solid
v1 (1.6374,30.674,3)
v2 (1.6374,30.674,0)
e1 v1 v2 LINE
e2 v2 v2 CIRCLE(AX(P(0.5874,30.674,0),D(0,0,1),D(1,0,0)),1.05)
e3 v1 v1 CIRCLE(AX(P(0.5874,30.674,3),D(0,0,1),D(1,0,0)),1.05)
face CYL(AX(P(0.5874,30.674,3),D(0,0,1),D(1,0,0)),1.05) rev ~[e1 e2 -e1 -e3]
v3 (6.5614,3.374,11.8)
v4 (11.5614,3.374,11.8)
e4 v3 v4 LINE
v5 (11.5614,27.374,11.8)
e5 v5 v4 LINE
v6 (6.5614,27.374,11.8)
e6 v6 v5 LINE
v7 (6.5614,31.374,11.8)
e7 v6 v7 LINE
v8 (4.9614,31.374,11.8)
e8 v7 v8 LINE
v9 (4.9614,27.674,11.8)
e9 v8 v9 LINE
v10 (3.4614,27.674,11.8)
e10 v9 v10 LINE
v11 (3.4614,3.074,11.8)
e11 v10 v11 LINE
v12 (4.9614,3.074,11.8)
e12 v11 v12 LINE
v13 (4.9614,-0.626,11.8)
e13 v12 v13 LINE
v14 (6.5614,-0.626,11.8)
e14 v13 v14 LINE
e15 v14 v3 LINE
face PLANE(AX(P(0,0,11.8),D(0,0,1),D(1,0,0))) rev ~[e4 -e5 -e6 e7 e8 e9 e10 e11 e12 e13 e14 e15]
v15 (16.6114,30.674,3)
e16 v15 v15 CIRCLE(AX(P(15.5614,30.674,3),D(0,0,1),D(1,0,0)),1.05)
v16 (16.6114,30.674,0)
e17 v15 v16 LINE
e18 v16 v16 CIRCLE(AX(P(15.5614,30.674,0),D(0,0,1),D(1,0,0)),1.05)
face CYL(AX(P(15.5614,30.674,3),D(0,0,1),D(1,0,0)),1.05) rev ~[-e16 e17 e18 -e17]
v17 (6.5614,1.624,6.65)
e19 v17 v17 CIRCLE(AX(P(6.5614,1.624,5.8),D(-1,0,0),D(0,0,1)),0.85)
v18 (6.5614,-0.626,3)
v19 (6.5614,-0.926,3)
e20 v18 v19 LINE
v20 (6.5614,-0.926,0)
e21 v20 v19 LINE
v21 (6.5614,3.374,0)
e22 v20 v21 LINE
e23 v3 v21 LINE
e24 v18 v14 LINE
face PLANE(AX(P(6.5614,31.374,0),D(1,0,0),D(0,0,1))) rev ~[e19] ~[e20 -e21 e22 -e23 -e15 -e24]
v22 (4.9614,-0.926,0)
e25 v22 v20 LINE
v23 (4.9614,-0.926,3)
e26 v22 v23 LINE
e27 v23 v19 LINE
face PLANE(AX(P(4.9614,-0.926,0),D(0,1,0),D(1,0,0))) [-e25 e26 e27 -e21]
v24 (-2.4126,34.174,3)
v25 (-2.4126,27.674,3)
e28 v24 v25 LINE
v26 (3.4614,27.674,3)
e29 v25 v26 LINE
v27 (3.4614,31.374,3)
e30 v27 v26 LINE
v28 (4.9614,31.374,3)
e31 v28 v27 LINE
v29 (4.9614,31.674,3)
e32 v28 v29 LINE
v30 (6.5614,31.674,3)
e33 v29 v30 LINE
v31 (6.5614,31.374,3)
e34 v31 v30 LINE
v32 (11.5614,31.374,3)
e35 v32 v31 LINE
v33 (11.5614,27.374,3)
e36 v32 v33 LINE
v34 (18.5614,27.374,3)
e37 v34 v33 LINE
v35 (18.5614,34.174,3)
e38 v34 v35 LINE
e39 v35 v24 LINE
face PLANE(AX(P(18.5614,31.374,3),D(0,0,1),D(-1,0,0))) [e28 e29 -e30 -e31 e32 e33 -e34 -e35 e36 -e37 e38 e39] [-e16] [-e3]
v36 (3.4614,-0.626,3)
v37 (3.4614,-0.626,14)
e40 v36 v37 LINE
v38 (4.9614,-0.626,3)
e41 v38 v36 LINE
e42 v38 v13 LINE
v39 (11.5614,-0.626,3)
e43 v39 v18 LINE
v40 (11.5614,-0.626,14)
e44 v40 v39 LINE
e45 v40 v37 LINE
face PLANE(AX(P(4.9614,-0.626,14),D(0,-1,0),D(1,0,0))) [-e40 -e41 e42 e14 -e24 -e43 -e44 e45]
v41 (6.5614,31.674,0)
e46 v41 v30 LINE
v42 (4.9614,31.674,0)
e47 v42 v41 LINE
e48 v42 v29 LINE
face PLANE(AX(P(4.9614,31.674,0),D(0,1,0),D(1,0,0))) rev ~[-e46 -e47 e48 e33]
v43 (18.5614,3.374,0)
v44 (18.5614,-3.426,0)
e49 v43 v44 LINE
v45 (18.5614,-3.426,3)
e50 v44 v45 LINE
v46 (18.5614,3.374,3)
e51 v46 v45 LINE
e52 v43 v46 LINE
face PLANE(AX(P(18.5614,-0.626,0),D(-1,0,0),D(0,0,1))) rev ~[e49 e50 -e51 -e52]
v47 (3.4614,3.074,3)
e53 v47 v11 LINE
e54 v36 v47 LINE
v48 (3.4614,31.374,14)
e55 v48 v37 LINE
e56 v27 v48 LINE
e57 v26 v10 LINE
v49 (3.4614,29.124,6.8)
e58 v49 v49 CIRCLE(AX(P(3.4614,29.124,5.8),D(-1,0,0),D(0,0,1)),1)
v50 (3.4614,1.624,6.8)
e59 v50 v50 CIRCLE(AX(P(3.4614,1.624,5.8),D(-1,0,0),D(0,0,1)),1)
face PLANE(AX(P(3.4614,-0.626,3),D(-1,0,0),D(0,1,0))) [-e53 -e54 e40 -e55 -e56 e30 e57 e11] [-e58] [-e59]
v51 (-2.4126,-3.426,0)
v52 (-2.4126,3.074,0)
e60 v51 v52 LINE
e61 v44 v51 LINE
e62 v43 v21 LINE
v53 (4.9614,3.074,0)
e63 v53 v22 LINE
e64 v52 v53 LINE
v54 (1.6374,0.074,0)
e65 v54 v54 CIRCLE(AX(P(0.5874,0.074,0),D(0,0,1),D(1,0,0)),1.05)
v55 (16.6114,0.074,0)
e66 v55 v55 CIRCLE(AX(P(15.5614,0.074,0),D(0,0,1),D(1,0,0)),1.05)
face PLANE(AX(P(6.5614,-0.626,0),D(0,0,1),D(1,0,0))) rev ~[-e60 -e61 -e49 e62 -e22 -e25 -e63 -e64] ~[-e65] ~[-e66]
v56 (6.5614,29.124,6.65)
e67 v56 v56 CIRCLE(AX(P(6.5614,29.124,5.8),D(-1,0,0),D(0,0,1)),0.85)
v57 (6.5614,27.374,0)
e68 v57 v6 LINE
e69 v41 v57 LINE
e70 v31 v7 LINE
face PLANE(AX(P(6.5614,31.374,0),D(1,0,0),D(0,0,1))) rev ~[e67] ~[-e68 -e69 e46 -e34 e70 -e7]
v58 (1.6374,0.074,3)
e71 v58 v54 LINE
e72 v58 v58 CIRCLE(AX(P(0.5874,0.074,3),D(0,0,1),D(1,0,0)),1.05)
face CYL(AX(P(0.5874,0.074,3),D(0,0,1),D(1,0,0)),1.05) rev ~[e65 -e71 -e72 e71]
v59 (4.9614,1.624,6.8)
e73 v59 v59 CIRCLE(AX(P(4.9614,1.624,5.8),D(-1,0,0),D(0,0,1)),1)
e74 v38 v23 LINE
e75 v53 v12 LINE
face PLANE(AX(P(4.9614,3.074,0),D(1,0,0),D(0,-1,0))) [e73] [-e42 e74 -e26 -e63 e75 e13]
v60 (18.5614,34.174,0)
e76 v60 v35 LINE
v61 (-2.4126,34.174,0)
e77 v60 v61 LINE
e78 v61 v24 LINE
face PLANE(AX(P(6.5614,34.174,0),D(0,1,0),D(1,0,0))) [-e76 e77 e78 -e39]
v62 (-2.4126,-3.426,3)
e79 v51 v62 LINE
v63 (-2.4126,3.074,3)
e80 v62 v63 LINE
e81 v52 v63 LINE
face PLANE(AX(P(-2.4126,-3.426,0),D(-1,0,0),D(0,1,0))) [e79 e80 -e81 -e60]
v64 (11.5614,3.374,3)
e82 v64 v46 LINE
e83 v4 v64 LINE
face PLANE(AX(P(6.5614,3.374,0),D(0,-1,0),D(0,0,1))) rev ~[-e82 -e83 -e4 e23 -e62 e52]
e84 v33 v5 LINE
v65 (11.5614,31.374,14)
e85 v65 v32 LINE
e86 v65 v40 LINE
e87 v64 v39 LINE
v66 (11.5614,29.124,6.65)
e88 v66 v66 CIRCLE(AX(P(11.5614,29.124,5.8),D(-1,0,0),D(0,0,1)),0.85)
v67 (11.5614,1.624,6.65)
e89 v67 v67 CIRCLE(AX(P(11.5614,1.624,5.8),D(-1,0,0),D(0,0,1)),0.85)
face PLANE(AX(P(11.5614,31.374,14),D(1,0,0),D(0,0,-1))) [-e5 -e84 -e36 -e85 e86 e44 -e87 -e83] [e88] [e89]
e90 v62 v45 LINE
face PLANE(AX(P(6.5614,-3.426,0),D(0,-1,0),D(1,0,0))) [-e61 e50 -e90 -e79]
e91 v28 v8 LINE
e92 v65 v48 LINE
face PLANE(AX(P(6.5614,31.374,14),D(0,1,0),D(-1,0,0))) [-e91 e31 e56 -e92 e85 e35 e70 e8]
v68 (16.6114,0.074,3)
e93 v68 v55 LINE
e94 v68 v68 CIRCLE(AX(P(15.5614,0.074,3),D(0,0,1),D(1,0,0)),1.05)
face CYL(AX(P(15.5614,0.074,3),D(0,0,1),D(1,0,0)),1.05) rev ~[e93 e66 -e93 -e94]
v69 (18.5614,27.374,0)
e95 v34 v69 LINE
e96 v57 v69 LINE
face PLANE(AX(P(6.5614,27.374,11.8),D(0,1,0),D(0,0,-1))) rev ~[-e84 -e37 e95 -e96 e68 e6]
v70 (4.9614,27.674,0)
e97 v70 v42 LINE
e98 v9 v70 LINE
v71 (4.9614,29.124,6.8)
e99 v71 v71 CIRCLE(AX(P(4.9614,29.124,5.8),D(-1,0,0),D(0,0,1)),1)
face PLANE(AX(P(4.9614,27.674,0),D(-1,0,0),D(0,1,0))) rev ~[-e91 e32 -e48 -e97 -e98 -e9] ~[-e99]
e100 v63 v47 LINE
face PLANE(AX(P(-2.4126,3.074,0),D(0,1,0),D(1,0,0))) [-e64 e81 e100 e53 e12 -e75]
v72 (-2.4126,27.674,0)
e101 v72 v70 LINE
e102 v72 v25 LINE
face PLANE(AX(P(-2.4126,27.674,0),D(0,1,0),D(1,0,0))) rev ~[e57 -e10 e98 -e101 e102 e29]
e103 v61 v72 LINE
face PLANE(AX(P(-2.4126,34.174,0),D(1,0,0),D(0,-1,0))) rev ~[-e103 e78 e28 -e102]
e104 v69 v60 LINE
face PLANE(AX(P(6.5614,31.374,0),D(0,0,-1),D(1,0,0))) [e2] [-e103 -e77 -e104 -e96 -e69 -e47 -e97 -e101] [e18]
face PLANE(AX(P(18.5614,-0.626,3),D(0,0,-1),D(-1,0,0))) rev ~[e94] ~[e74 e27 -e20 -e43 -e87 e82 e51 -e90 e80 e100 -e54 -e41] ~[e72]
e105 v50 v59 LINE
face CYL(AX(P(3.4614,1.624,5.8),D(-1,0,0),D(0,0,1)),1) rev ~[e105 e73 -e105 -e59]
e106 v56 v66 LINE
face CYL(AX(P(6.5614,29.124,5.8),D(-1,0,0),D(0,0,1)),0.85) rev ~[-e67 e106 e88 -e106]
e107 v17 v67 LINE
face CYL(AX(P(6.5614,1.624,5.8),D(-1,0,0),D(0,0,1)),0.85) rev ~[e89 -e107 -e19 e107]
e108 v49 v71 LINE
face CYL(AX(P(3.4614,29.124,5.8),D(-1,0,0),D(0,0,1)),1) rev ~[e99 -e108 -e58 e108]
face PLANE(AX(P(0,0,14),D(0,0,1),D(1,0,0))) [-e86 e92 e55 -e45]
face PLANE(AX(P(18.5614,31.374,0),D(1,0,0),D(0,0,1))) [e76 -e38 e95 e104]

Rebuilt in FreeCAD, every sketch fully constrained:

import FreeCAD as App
import Part
import Sketcher
from FreeCAD import Vector
Q = App.Units.Quantity


def add_polygon(sketch, points):
    """Adds a closed chain of lines whose ends are joined by coincident constraints."""
    first, n = sketch.GeometryCount, len(points)
    for a, b in zip(points, points[1:] + points[:1]):
        sketch.addGeometry(Part.LineSegment(App.Vector(*a, 0), App.Vector(*b, 0)), False)
    for i in range(n):
        sketch.addConstraint(Sketcher.Constraint("Coincident", first + i, 2, first + (i + 1) % n, 1))

doc = App.newDocument("Part")
params = doc.addObject("Spreadsheet::Sheet", "Params")
for row, (alias, value) in enumerate([
    ("sketch1_width", "12 mm"),
    ("sketch1_height", "32 mm"),
    ("pad1_length", "14 mm"),
    ("sketch2_diameter", "1.7 mm"),
    ("sketch3_width", "24 mm"),
    ("sketch3_height", "12 mm"),
    ("sketch4_width", "7 mm"),
    ("sketch4_height", "11 mm"),
    ("pocket3_length", "32 mm"),
    ("sketch5_width", "12 mm"),
    ("sketch5_height", "3 mm"),
    ("pad2_length", "2.8 mm"),
    ("sketch6_width", "12 mm"),
    ("sketch6_height", "3 mm"),
    ("pad3_length", "2.8 mm"),
    ("sketch7_height", "4 mm"),
    ("sketch7_width", "1.6 mm"),
    ("sketch7_height2", "2.5 mm"),
    ("pad4_length", "3 mm"),
    ("sketch8_width", "1.5 mm"),
    ("sketch8_height", "3.7 mm"),
    ("pad5_length", "11 mm"),
    ("sketch9_height", "32 mm"),
    ("sketch9_width", "1.6 mm"),
    ("sketch9_width2", "1.5 mm"),
    ("sketch9_height2", "3.7 mm"),
    ("pad6_length", "2.2 mm"),
    ("sketch10_diameter", "2 mm"),
    ("pocket4_length", "1.5 mm"),
    ("sketch11_diameter", "2.1 mm"),
    ("pocket5_length", "3 mm"),
], start=1):
    params.set(f"A{row}", alias)
    params.set(f"B{row}", "=" + value)
    params.setAlias(f"B{row}", alias)

body = doc.addObject("PartDesign::Body", "Body")

# Sketch on XY plane
sketch1 = body.newObject("Sketcher::SketchObject", "Sketch")
sketch1.AttachmentSupport = (doc.getObject("XY_Plane"), [""])
sketch1.MapMode = "FlatFace"
add_polygon(sketch1, [(7, 31), (7, -1), (19, -1), (19, 31)])  # lines 0-3
sketch1.addConstraint([
    Sketcher.Constraint("Vertical", 0),
    Sketcher.Constraint("Horizontal", 1),
    Sketcher.Constraint("Vertical", 2),
    Sketcher.Constraint("Horizontal", 3),
    Sketcher.Constraint("DistanceX", 1, 1, 1, 2, Q("12 mm")),
    Sketcher.Constraint("DistanceY", 0, 2, 0, 1, Q("32 mm")),
    Sketcher.Constraint("DistanceY", 0, 2, -1, 1, Q("0.626 mm")),
    Sketcher.Constraint("DistanceX", -1, 1, 0, 2, Q("6.5614 mm")),
])
sketch1.setExpression("Constraints[8]", "Params.sketch1_width")
sketch1.setExpression("Constraints[9]", "Params.sketch1_height")
pad1 = body.newObject("PartDesign::Pad", "Pad")
pad1.Profile = sketch1
pad1.setExpression("Length", "Params.pad1_length")

# Sketch on YZ plane
sketch2 = body.newObject("Sketcher::SketchObject", "Sketch001")
sketch2.AttachmentSupport = (doc.getObject("YZ_Plane"), [""])
sketch2.MapMode = "FlatFace"
sketch2.AttachmentOffset = App.Placement(Vector(0, 0, 6.5614), App.Rotation())
sketch2.addGeometry([
    Part.Circle(Vector(29.1, 5.8, 0), Vector(0, 0, 1), 0.8),
    Part.Circle(Vector(1.6, 5.8, 0), Vector(0, 0, 1), 0.8),
], False)
sketch2.addConstraint([
    Sketcher.Constraint("Equal", 0, 1),
    Sketcher.Constraint("Horizontal", 0, 3, 1, 3),
    Sketcher.Constraint("Diameter", 0, Q("1.7 mm")),
    Sketcher.Constraint("DistanceY", -1, 1, 0, 3, Q("5.8 mm")),
    Sketcher.Constraint("DistanceX", 1, 3, 0, 3, Q("27.5 mm")),
    Sketcher.Constraint("DistanceX", -1, 1, 0, 3, Q("29.124 mm")),
])
sketch2.setExpression("Constraints[2]", "Params.sketch2_diameter")
pocket1 = body.newObject("PartDesign::Pocket", "Pocket")
pocket1.Profile = sketch2
pocket1.Type = "UpToFirst"
pocket1.Reversed = True

# Sketch on YZ plane
sketch3 = body.newObject("Sketcher::SketchObject", "Sketch002")
sketch3.AttachmentSupport = (doc.getObject("YZ_Plane"), [""])
sketch3.MapMode = "FlatFace"
sketch3.AttachmentOffset = App.Placement(Vector(0, 0, 6.5614), App.Rotation())
add_polygon(sketch3, [(3, 12), (27, 12), (27, 0), (3, 0)])  # lines 0-3
sketch3.addConstraint([
    Sketcher.Constraint("Horizontal", 0),
    Sketcher.Constraint("Vertical", 1),
    Sketcher.Constraint("Horizontal", 2),
    Sketcher.Constraint("Vertical", 3),
    Sketcher.Constraint("DistanceY", 1, 2, -1, 1, Q("0.2 mm")),
    Sketcher.Constraint("DistanceX", 0, 1, 0, 2, Q("24 mm")),
    Sketcher.Constraint("DistanceY", 1, 2, 1, 1, Q("12 mm")),
    Sketcher.Constraint("DistanceX", -1, 1, 0, 2, Q("27.374 mm")),
])
sketch3.setExpression("Constraints[9]", "Params.sketch3_width")
sketch3.setExpression("Constraints[10]", "Params.sketch3_height")
pocket2 = body.newObject("PartDesign::Pocket", "Pocket001")
pocket2.Profile = sketch3
pocket2.Type = "UpToFirst"
pocket2.Reversed = True

# Sketch on XZ plane
sketch4 = body.newObject("Sketcher::SketchObject", "Sketch003")
sketch4.AttachmentSupport = (doc.getObject("XZ_Plane"), [""])
sketch4.MapMode = "FlatFace"
sketch4.AttachmentOffset = App.Placement(Vector(0, 0, -31.374), App.Rotation())
add_polygon(sketch4, [(12, 14), (19, 14), (19, 3), (12, 3)])  # lines 0-3
sketch4.addConstraint([
    Sketcher.Constraint("Horizontal", 0),
    Sketcher.Constraint("Vertical", 1),
    Sketcher.Constraint("Horizontal", 2),
    Sketcher.Constraint("Vertical", 3),
    Sketcher.Constraint("DistanceX", 0, 1, 0, 2, Q("7 mm")),
    Sketcher.Constraint("DistanceY", -1, 1, 1, 2, Q("3 mm")),
    Sketcher.Constraint("DistanceY", 1, 2, 1, 1, Q("11 mm")),
    Sketcher.Constraint("DistanceX", -1, 1, 0, 2, Q("18.5614 mm")),
])
sketch4.setExpression("Constraints[8]", "Params.sketch4_width")
sketch4.setExpression("Constraints[10]", "Params.sketch4_height")
pocket3 = body.newObject("PartDesign::Pocket", "Pocket002")
pocket3.Profile = sketch4
pocket3.setExpression("Length", "Params.pocket3_length")
pocket3.Reversed = True

# Sketch on XZ plane
sketch5 = body.newObject("Sketcher::SketchObject", "Sketch004")
sketch5.AttachmentSupport = (doc.getObject("XZ_Plane"), [""])
sketch5.MapMode = "FlatFace"
sketch5.AttachmentOffset = App.Placement(Vector(0, 0, 0.626), App.Rotation())
add_polygon(sketch5, [(6.6, 0), (18.6, 0), (18.6, 3), (6.6, 3)])  # lines 0-3
sketch5.addConstraint([
    Sketcher.Constraint("Horizontal", 0),
    Sketcher.Constraint("Vertical", 1),
    Sketcher.Constraint("Horizontal", 2),
    Sketcher.Constraint("Vertical", 3),
    Sketcher.Constraint("PointOnObject", 0, 2, -1),
    Sketcher.Constraint("DistanceX", 0, 1, 0, 2, Q("12 mm")),
    Sketcher.Constraint("DistanceY", 1, 1, 1, 2, Q("3 mm")),
    Sketcher.Constraint("DistanceX", -1, 1, 0, 2, Q("18.5614 mm")),
])
sketch5.setExpression("Constraints[9]", "Params.sketch5_width")
sketch5.setExpression("Constraints[10]", "Params.sketch5_height")
pad2 = body.newObject("PartDesign::Pad", "Pad001")
pad2.Profile = sketch5
pad2.setExpression("Length", "Params.pad2_length")

# Sketch on XZ plane
sketch6 = body.newObject("Sketcher::SketchObject", "Sketch005")
sketch6.AttachmentSupport = (doc.getObject("XZ_Plane"), [""])
sketch6.MapMode = "FlatFace"
sketch6.AttachmentOffset = App.Placement(Vector(0, 0, -31.374), App.Rotation())
add_polygon(sketch6, [(6.6, 3), (18.6, 3), (18.6, 0), (6.6, 0)])  # lines 0-3
sketch6.addConstraint([
    Sketcher.Constraint("Horizontal", 0),
    Sketcher.Constraint("Vertical", 1),
    Sketcher.Constraint("Horizontal", 2),
    Sketcher.Constraint("Vertical", 3),
    Sketcher.Constraint("PointOnObject", 1, 2, -1),
    Sketcher.Constraint("DistanceX", 0, 1, 0, 2, Q("12 mm")),
    Sketcher.Constraint("DistanceY", 1, 2, 1, 1, Q("3 mm")),
    Sketcher.Constraint("DistanceX", -1, 1, 0, 2, Q("18.5614 mm")),
])
sketch6.setExpression("Constraints[9]", "Params.sketch6_width")
sketch6.setExpression("Constraints[10]", "Params.sketch6_height")
pad3 = body.newObject("PartDesign::Pad", "Pad002")
pad3.Profile = sketch6
pad3.setExpression("Length", "Params.pad3_length")
pad3.Reversed = True

# Sketch on XY plane
sketch7 = body.newObject("Sketcher::SketchObject", "Sketch006")
sketch7.AttachmentSupport = (doc.getObject("XY_Plane"), [""])
sketch7.MapMode = "FlatFace"
add_polygon(sketch7, [(6.6, 34.2), (6.6, 31.7), (5, 31.7), (5, 27.7), (-2.4, 27.7), (-2.4, 34.2)])  # lines 0-5
add_polygon(sketch7, [(5, -0.9), (6.6, -0.9), (6.6, -3.4), (-2.4, -3.4), (-2.4, 3.1), (5, 3.1)])  # lines 6-11
sketch7.addConstraint([
    Sketcher.Constraint("Vertical", 0),
    Sketcher.Constraint("Horizontal", 1),
    Sketcher.Constraint("Vertical", 2),
    Sketcher.Constraint("Horizontal", 3),
    Sketcher.Constraint("Vertical", 4),
    Sketcher.Constraint("Horizontal", 5),
    Sketcher.Constraint("Horizontal", 6),
    Sketcher.Constraint("Vertical", 7),
    Sketcher.Constraint("Horizontal", 8),
    Sketcher.Constraint("Vertical", 9),
    Sketcher.Constraint("Horizontal", 10),
    Sketcher.Constraint("Vertical", 11),
    Sketcher.Constraint("Vertical", 5, 2, 6, 2),
    Sketcher.Constraint("Vertical", 4, 2, 8, 2),
    Sketcher.Constraint("Vertical", 2, 2, 10, 2),
    Sketcher.Constraint("Equal", 0, 7),
    Sketcher.Constraint("Equal", 4, 9),
    Sketcher.Constraint("DistanceY", 2, 2, 2, 1, Q("4 mm")),
    Sketcher.Constraint("DistanceX", 1, 2, 1, 1, Q("1.6 mm")),
    Sketcher.Constraint("DistanceY", 0, 2, 0, 1, Q("2.5 mm")),
    Sketcher.Constraint("DistanceY", 6, 2, 2, 2, Q("28.6 mm")),
    Sketcher.Constraint("DistanceX", 3, 2, 3, 1, Q("7.374 mm")),
    Sketcher.Constraint("DistanceY", -1, 1, 0, 2, Q("31.674 mm")),
    Sketcher.Constraint("DistanceX", -1, 1, 0, 2, Q("6.5614 mm")),
])
sketch7.setExpression("Constraints[29]", "Params.sketch7_height")
sketch7.setExpression("Constraints[30]", "Params.sketch7_width")
sketch7.setExpression("Constraints[31]", "Params.sketch7_height2")
pad4 = body.newObject("PartDesign::Pad", "Pad003")
pad4.Profile = sketch7
pad4.setExpression("Length", "Params.pad4_length")

# Sketch on XY plane
sketch8 = body.newObject("Sketcher::SketchObject", "Sketch007")
sketch8.AttachmentSupport = (doc.getObject("XY_Plane"), [""])
sketch8.MapMode = "FlatFace"
sketch8.AttachmentOffset = App.Placement(Vector(0, 0, 3), App.Rotation())
add_polygon(sketch8, [(5, 3.1), (3.5, 3.1), (3.5, -0.6), (5, -0.6)])  # lines 0-3
add_polygon(sketch8, [(3.5, 27.7), (5, 27.7), (5, 31.4), (3.5, 31.4)])  # lines 4-7
sketch8.addConstraint([
    Sketcher.Constraint("Horizontal", 0),
    Sketcher.Constraint("Vertical", 1),
    Sketcher.Constraint("Horizontal", 2),
    Sketcher.Constraint("Vertical", 3),
    Sketcher.Constraint("Horizontal", 4),
    Sketcher.Constraint("Vertical", 5),
    Sketcher.Constraint("Horizontal", 6),
    Sketcher.Constraint("Vertical", 7),
    Sketcher.Constraint("Vertical", 3, 2, 4, 2),
    Sketcher.Constraint("Vertical", 1, 2, 6, 2),
    Sketcher.Constraint("Equal", 3, 5),
    Sketcher.Constraint("DistanceX", 0, 2, 0, 1, Q("1.5 mm")),
    Sketcher.Constraint("DistanceY", 1, 2, 1, 1, Q("3.7 mm")),
    Sketcher.Constraint("DistanceY", 2, 2, 5, 2, Q("32 mm")),
    Sketcher.Constraint("DistanceY", -1, 1, 0, 2, Q("3.074 mm")),
    Sketcher.Constraint("DistanceX", -1, 1, 0, 2, Q("3.4614 mm")),
])
sketch8.setExpression("Constraints[19]", "Params.sketch8_width")
sketch8.setExpression("Constraints[20]", "Params.sketch8_height")
pad5 = body.newObject("PartDesign::Pad", "Pad004")
pad5.Profile = sketch8
pad5.setExpression("Length", "Params.pad5_length")

# Sketch on XY plane
sketch9 = body.newObject("Sketcher::SketchObject", "Sketch008")
sketch9.AttachmentSupport = (doc.getObject("XY_Plane"), [""])
sketch9.MapMode = "FlatFace"
sketch9.AttachmentOffset = App.Placement(Vector(0, 0, 14), App.Rotation())
add_polygon(sketch9, [(6.6, -0.6), (6.6, 31.4), (5, 31.4), (5, 27.7), (3.5, 27.7), (3.5, 3.1), (5, 3.1), (5, -0.6)])  # lines 0-7
sketch9.addConstraint([
    Sketcher.Constraint("Vertical", 0),
    Sketcher.Constraint("Horizontal", 1),
    Sketcher.Constraint("Vertical", 2),
    Sketcher.Constraint("Horizontal", 3),
    Sketcher.Constraint("Vertical", 4),
    Sketcher.Constraint("Horizontal", 5),
    Sketcher.Constraint("Vertical", 6),
    Sketcher.Constraint("Horizontal", 7),
    Sketcher.Constraint("Vertical", 2, 2, 5, 2),
    Sketcher.Constraint("Equal", 2, 6),
    Sketcher.Constraint("DistanceY", 0, 1, 0, 2, Q("32 mm")),
    Sketcher.Constraint("DistanceX", 1, 2, 1, 1, Q("1.6 mm")),
    Sketcher.Constraint("DistanceX", 3, 2, 3, 1, Q("1.5 mm")),
    Sketcher.Constraint("DistanceY", 2, 2, 2, 1, Q("3.7 mm")),
    Sketcher.Constraint("DistanceY", -1, 1, 0, 2, Q("31.374 mm")),
    Sketcher.Constraint("DistanceX", -1, 1, 0, 2, Q("6.5614 mm")),
])
sketch9.setExpression("Constraints[18]", "Params.sketch9_height")
sketch9.setExpression("Constraints[19]", "Params.sketch9_width")
sketch9.setExpression("Constraints[20]", "Params.sketch9_width2")
sketch9.setExpression("Constraints[21]", "Params.sketch9_height2")
pad6 = body.newObject("PartDesign::Pad", "Pad005")
pad6.Profile = sketch9
pad6.setExpression("Length", "Params.pad6_length")
pad6.Reversed = True

# Sketch on YZ plane
sketch10 = body.newObject("Sketcher::SketchObject", "Sketch009")
sketch10.AttachmentSupport = (doc.getObject("YZ_Plane"), [""])
sketch10.MapMode = "FlatFace"
sketch10.AttachmentOffset = App.Placement(Vector(0, 0, 3.4614), App.Rotation())
sketch10.addGeometry([
    Part.Circle(Vector(29.1, 5.8, 0), Vector(0, 0, 1), 1),
    Part.Circle(Vector(1.6, 5.8, 0), Vector(0, 0, 1), 1),
], False)
sketch10.addConstraint([
    Sketcher.Constraint("Equal", 0, 1),
    Sketcher.Constraint("Horizontal", 0, 3, 1, 3),
    Sketcher.Constraint("Diameter", 0, Q("2 mm")),
    Sketcher.Constraint("DistanceY", -1, 1, 0, 3, Q("5.8 mm")),
    Sketcher.Constraint("DistanceX", 1, 3, 0, 3, Q("27.5 mm")),
    Sketcher.Constraint("DistanceX", -1, 1, 0, 3, Q("29.124 mm")),
])
sketch10.setExpression("Constraints[2]", "Params.sketch10_diameter")
pocket4 = body.newObject("PartDesign::Pocket", "Pocket003")
pocket4.Profile = sketch10
pocket4.setExpression("Length", "Params.pocket4_length")
pocket4.Reversed = True

# Sketch on XY plane
sketch11 = body.newObject("Sketcher::SketchObject", "Sketch010")
sketch11.AttachmentSupport = (doc.getObject("XY_Plane"), [""])
sketch11.MapMode = "FlatFace"
sketch11.AttachmentOffset = App.Placement(Vector(0, 0, 3), App.Rotation())
sketch11.addGeometry([
    Part.Circle(Vector(15.6, 30.7, 0), Vector(0, 0, 1), 1.1),
    Part.Circle(Vector(0.6, 30.7, 0), Vector(0, 0, 1), 1.1),
    Part.Circle(Vector(15.6, 0.1, 0), Vector(0, 0, 1), 1.1),
    Part.Circle(Vector(0.6, 0.1, 0), Vector(0, 0, 1), 1.1),
], False)
sketch11.addConstraint([
    Sketcher.Constraint("Equal", 0, 1),
    Sketcher.Constraint("Equal", 1, 2),
    Sketcher.Constraint("Equal", 2, 3),
    Sketcher.Constraint("Horizontal", 0, 3, 1, 3),
    Sketcher.Constraint("Horizontal", 2, 3, 3, 3),
    Sketcher.Constraint("Vertical", 0, 3, 2, 3),
    Sketcher.Constraint("Vertical", 1, 3, 3, 3),
    Sketcher.Constraint("Diameter", 0, Q("2.1 mm")),
    Sketcher.Constraint("DistanceY", 2, 3, 0, 3, Q("30.6 mm")),
    Sketcher.Constraint("DistanceY", -1, 1, 0, 3, Q("30.674 mm")),
    Sketcher.Constraint("DistanceX", 1, 3, 0, 3, Q("14.974 mm")),
    Sketcher.Constraint("DistanceX", -1, 1, 0, 3, Q("15.5614 mm")),
])
sketch11.setExpression("Constraints[7]", "Params.sketch11_diameter")
pocket5 = body.newObject("PartDesign::Pocket", "Pocket004")
pocket5.Profile = sketch11
pocket5.setExpression("Length", "Params.pocket5_length")

doc.recompute()
